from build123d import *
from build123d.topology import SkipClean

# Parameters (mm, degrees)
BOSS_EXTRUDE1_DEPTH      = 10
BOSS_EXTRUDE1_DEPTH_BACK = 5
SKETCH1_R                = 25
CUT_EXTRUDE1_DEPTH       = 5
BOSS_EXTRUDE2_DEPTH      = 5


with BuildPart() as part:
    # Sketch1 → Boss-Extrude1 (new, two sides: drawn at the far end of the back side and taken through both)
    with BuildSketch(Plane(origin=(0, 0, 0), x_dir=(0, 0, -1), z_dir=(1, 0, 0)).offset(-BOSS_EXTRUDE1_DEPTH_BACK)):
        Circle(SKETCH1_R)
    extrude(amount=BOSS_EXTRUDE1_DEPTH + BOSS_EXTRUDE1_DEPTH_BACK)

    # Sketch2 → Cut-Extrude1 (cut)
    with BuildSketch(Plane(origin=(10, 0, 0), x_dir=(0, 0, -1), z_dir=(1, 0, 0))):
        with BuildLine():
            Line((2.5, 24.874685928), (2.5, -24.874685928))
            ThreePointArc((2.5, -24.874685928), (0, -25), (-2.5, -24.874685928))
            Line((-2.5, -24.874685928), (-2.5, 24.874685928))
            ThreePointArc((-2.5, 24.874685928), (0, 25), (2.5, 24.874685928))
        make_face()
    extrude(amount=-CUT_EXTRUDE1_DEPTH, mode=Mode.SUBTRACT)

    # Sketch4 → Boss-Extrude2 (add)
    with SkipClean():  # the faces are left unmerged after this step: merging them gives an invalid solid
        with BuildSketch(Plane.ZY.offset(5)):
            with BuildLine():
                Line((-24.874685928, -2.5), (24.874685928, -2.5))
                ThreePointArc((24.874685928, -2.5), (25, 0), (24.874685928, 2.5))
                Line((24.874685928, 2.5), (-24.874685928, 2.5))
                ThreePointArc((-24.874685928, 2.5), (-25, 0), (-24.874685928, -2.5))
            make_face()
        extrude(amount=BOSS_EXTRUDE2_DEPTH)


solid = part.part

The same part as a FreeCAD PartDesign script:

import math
import FreeCAD as App
import Part
import Sketcher
from FreeCAD import Vector

doc = App.newDocument("Part")
params = doc.addObject("Spreadsheet::Sheet", "Params")
for row, (alias, value) in enumerate([
    ("sketch1_diameter", "50 mm"),
    ("pad1_length", "10 mm"),
    ("pad1_length2", "5 mm"),
    ("sketch2_radius", "25 mm"),
    ("pocket1_length", "5 mm"),
    ("sketch3_radius", "25 mm"),
    ("pad2_length", "5 mm"),
], start=1):
    params.set(f"A{row}", alias)
    params.set(f"B{row}", "=" + value)
    params.setAlias(f"B{row}", alias)

body = doc.addObject("PartDesign::Body", "Body")

sketch1 = doc.addObject("Sketcher::SketchObject", "Sketch")
body.addObject(sketch1)
sketch1.AttachmentSupport = (doc.YZ_Plane, [""])
sketch1.MapMode = "FlatFace"
sketch1.addGeometry(Part.Circle(Vector(0, 0, 0), Vector(0, 0, 1), 25), False)
sketch1.addConstraint([
    Sketcher.Constraint("Coincident", 0, 3, -1, 1),
    Sketcher.Constraint("Diameter", 0, 50.0),
])
sketch1.setExpression("Constraints[1]", "Params.sketch1_diameter")
pad1 = doc.addObject("PartDesign::Pad", "Pad")
body.addObject(pad1)
pad1.Profile = sketch1
pad1.Type = "TwoLengths"
pad1.setExpression("Length", "Params.pad1_length")
pad1.setExpression("Length2", "Params.pad1_length2")

sketch2 = doc.addObject("Sketcher::SketchObject", "Sketch001")
body.addObject(sketch2)
sketch2.AttachmentSupport = (doc.YZ_Plane, [""])
sketch2.MapMode = "FlatFace"
sketch2.AttachmentOffset = App.Placement(Vector(0, 0, 10), App.Rotation())
sketch2.addGeometry([
    Part.LineSegment(Vector(-25, -2, 0), Vector(25, -2, 0)),
    Part.ArcOfCircle(Part.Circle(Vector(0, 0, 0), Vector(0, 0, 1), 25), math.radians(-5.74), math.radians(5.74)),
    Part.LineSegment(Vector(25, 2, 0), Vector(-25, 2, 0)),
    Part.ArcOfCircle(Part.Circle(Vector(0, 0, 0), Vector(0, 0, 1), 25), math.radians(174.26), math.radians(185.74)),
], False)
sketch2.addConstraint([
    Sketcher.Constraint("Coincident", 0, 2, 1, 1),
    Sketcher.Constraint("Coincident", 1, 2, 2, 1),
    Sketcher.Constraint("Coincident", 2, 2, 3, 1),
    Sketcher.Constraint("Coincident", 3, 2, 0, 1),
    Sketcher.Constraint("Horizontal", 0),
    Sketcher.Constraint("Horizontal", 2),
    Sketcher.Constraint("Coincident", 1, 3, -1, 1),
    Sketcher.Constraint("Coincident", 3, 3, -1, 1),
    Sketcher.Constraint("Equal", 1, 3),
    Sketcher.Constraint("Vertical", 0, 2, 1, 2),
    Sketcher.Constraint("Radius", 1, 25.0),
    Sketcher.Constraint("DistanceY", 0, 2, 1, 2, 5.0),
])
sketch2.setExpression("Constraints[10]", "Params.sketch2_radius")
pocket1 = doc.addObject("PartDesign::Pocket", "Pocket")
body.addObject(pocket1)
pocket1.Profile = sketch2
pocket1.setExpression("Length", "Params.pocket1_length")

sketch3 = doc.addObject("Sketcher::SketchObject", "Sketch002")
body.addObject(sketch3)
sketch3.AttachmentSupport = (doc.YZ_Plane, [""])
sketch3.MapMode = "FlatFace"
sketch3.AttachmentOffset = App.Placement(Vector(0, 0, -5), App.Rotation())
sketch3.addGeometry([
    Part.LineSegment(Vector(-2, -25, 0), Vector(-2, 25, 0)),
    Part.ArcOfCircle(Part.Circle(Vector(0, 0, 0), Vector(0, 0, 1), 25), math.radians(84.26), math.radians(95.74)),
    Part.LineSegment(Vector(2, 25, 0), Vector(2, -25, 0)),
    Part.ArcOfCircle(Part.Circle(Vector(0, 0, 0), Vector(0, 0, 1), 25), math.radians(-95.74), math.radians(-84.26)),
], False)
sketch3.addConstraint([
    Sketcher.Constraint("Coincident", 0, 2, 1, 2),
    Sketcher.Constraint("Coincident", 1, 1, 2, 1),
    Sketcher.Constraint("Coincident", 2, 2, 3, 2),
    Sketcher.Constraint("Coincident", 3, 1, 0, 1),
    Sketcher.Constraint("Vertical", 0),
    Sketcher.Constraint("Vertical", 2),
    Sketcher.Constraint("Coincident", 1, 3, -1, 1),
    Sketcher.Constraint("Coincident", 3, 3, -1, 1),
    Sketcher.Constraint("Equal", 1, 3),
    Sketcher.Constraint("Horizontal", 0, 2, 1, 1),
    Sketcher.Constraint("Radius", 1, 25.0),
    Sketcher.Constraint("DistanceX", 0, 2, 1, 1, 5.0),
])
sketch3.setExpression("Constraints[10]", "Params.sketch3_radius")
pad2 = doc.addObject("PartDesign::Pad", "Pad001")
body.addObject(pad2)
pad2.Profile = sketch3
pad2.setExpression("Length", "Params.pad2_length")
pad2.Reversed = True

doc.recompute()
